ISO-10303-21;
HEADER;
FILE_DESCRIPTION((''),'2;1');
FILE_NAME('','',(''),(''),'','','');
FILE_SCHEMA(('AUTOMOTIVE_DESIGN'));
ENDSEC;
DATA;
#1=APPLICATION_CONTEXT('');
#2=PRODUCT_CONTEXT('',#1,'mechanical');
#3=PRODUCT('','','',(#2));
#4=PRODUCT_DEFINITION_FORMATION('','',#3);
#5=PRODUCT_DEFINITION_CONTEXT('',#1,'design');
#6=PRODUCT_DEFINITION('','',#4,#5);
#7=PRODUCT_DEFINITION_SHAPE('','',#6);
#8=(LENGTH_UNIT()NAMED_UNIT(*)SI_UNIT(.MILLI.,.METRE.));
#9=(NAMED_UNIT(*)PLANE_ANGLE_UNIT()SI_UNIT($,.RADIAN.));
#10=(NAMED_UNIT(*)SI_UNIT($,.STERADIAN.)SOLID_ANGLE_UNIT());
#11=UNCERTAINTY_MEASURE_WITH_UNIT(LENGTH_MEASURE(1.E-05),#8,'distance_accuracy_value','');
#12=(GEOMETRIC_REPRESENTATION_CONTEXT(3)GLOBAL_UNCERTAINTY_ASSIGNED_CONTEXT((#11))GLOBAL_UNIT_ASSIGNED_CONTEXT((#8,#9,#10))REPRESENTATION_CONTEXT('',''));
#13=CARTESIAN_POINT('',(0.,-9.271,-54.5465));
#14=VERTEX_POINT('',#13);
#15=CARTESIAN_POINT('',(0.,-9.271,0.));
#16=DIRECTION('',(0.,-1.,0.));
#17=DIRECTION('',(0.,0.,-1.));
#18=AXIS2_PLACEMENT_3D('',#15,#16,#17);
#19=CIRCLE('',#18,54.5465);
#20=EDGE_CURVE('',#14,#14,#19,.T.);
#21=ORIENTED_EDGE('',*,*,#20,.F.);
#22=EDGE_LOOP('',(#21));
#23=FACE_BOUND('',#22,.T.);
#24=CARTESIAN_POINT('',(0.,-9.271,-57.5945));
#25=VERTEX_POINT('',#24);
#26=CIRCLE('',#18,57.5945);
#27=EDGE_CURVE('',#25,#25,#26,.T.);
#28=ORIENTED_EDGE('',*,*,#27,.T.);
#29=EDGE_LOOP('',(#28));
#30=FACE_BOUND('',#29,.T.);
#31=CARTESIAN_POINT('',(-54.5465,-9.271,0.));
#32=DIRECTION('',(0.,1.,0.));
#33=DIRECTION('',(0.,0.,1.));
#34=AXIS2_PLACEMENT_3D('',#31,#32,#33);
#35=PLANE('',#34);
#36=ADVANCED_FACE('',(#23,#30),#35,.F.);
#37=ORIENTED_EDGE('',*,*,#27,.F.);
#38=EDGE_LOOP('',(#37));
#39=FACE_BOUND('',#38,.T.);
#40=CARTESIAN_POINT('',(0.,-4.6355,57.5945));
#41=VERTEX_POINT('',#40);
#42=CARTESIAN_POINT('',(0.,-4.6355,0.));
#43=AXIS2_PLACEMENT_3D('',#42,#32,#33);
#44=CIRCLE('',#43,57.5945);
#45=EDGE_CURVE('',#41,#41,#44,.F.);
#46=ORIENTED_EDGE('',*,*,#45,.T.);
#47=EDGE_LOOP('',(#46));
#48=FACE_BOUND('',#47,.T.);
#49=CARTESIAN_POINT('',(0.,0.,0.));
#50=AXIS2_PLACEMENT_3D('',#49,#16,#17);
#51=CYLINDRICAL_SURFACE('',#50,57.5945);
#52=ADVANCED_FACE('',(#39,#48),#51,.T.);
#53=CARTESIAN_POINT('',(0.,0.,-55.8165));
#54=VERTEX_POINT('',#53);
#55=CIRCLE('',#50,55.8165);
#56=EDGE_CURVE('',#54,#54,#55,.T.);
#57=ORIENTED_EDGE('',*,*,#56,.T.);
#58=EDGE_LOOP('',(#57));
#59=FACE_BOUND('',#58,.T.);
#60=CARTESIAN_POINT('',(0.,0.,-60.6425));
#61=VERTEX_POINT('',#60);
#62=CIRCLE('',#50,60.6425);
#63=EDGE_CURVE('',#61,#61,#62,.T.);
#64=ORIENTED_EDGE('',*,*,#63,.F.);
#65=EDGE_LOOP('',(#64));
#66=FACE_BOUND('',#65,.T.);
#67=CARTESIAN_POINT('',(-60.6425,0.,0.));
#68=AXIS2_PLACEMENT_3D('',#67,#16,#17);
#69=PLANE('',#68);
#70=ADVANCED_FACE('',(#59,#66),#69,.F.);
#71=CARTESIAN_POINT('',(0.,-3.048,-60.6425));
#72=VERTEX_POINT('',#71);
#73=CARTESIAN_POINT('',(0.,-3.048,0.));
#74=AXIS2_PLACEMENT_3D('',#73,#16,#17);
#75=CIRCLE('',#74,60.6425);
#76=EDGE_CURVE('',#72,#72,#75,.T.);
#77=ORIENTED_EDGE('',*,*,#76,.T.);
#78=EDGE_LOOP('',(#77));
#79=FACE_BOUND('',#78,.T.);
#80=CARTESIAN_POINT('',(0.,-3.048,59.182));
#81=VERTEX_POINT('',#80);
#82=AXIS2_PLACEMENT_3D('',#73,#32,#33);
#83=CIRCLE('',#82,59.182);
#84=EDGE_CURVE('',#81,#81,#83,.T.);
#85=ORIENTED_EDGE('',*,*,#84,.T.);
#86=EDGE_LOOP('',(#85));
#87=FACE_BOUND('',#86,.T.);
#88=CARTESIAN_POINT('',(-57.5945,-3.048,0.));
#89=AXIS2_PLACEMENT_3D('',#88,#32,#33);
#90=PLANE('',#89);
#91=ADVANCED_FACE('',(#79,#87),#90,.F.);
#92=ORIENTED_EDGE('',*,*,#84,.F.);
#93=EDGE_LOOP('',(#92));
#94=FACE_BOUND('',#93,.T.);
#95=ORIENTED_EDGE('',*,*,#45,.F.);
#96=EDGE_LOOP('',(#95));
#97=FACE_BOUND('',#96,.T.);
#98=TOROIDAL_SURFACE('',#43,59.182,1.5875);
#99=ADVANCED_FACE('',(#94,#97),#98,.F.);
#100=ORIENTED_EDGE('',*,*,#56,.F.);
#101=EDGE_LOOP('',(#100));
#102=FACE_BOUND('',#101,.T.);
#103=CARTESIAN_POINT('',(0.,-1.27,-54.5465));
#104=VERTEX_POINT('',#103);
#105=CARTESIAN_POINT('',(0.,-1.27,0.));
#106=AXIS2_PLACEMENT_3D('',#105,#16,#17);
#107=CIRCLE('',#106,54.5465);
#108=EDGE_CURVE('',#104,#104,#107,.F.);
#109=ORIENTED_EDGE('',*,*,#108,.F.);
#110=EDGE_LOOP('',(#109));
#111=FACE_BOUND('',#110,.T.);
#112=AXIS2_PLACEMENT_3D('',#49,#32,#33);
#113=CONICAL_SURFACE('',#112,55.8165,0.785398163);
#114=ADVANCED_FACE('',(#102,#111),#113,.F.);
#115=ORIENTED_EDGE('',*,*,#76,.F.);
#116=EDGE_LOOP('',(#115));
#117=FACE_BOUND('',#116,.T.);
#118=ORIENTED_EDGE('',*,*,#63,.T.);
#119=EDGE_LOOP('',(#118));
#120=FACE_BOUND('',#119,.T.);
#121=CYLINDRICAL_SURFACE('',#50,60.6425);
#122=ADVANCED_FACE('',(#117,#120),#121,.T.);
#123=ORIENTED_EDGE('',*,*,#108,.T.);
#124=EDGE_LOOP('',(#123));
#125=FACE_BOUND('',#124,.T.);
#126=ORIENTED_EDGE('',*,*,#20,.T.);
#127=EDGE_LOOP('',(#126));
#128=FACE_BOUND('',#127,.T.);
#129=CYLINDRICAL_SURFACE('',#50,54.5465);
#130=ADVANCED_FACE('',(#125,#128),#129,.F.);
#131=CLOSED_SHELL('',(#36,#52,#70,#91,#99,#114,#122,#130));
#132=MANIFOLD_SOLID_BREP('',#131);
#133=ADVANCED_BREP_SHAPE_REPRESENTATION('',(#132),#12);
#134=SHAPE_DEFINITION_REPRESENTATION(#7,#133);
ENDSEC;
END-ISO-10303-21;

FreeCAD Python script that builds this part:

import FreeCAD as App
import Part
import Sketcher
Q = App.Units.Quantity


def edges_at(feature, points):
    """Names of the edges that pass closest to the given points."""
    edges = feature.Shape.Edges
    near = lambda p: min(range(len(edges)), key=lambda i: edges[i].distToShape(Part.Vertex(*p))[0])
    return sorted({f"Edge{near(p) + 1}" for p in points})


def add_polygon(sketch, points):
    """Adds a closed chain of lines whose ends are joined by coincident constraints."""
    first, n = sketch.GeometryCount, len(points)
    for a, b in zip(points, points[1:] + points[:1]):
        sketch.addGeometry(Part.LineSegment(App.Vector(*a, 0), App.Vector(*b, 0)), False)
    for i in range(n):
        sketch.addConstraint(Sketcher.Constraint("Coincident", first + i, 2, first + (i + 1) % n, 1))

doc = App.newDocument("Part")
body = doc.addObject("PartDesign::Body", "Body")

# Sketch on XY plane
sketch1 = body.newObject("Sketcher::SketchObject", "Sketch")
sketch1.AttachmentSupport = (doc.getObject("XY_Plane"), [""])
sketch1.MapMode = "FlatFace"
add_polygon(sketch1, [(-54.5, -9.3), (-54.5, 0), (-60.6, 0), (-60.6, -3), (-57.6, -3), (-57.6, -9.3)])  # lines 0-5
sketch1.addConstraint([
    Sketcher.Constraint("Vertical", 0),
    Sketcher.Constraint("Horizontal", 1),
    Sketcher.Constraint("Vertical", 2),
    Sketcher.Constraint("Horizontal", 3),
    Sketcher.Constraint("Vertical", 4),
    Sketcher.Constraint("Horizontal", 5),
    Sketcher.Constraint("PointOnObject", 0, 2, -1),
    Sketcher.Constraint("Equal", 3, 5),
    Sketcher.Constraint("Equal", 5, 2),
    Sketcher.Constraint("DistanceX", 1, 2, 1, 1, Q("0.24 in")),
    Sketcher.Constraint("DistanceY", 0, 1, 0, 2, Q("0.365 in")),
    Sketcher.Constraint("DistanceX", 0, 2, -1, 1, Q("2.1475 in")),
])
revolution = body.newObject("PartDesign::Revolution", "Revolution")
revolution.Profile = sketch1
revolution.ReferenceAxis = (sketch1, ["V_Axis"])
revolution.Angle = 360
doc.recompute()

chamfer = body.newObject("PartDesign::Chamfer", "Chamfer")
chamfer.Base = (revolution, edges_at(revolution, [(0, 0, 54.547)]))
chamfer.Size = Q("0.05 in")
doc.recompute()

fillet = body.newObject("PartDesign::Fillet", "Fillet")
fillet.Base = (chamfer, edges_at(chamfer, [(0, -3.048, 57.594)]))
fillet.Radius = Q("0.0625 in")

doc.recompute()
